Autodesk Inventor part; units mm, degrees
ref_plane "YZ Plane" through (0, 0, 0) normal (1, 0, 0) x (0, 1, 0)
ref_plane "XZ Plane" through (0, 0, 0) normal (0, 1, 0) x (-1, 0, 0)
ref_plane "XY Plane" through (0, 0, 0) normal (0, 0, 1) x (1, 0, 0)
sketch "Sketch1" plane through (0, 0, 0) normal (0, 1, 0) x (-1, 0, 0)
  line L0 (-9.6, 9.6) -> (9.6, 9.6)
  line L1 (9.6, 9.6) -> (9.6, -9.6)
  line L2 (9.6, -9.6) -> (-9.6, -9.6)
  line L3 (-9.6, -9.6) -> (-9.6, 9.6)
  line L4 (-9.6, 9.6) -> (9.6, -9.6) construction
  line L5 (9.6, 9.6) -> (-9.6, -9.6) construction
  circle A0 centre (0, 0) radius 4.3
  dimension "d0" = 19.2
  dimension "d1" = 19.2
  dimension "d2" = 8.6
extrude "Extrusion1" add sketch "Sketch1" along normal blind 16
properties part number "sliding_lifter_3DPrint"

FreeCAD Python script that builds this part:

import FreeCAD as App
import Part
import Sketcher
Q = App.Units.Quantity

doc = App.newDocument("Part")
body = doc.addObject("PartDesign::Body", "Body")

# Sketch on XZ plane
sketch1 = body.newObject("Sketcher::SketchObject", "Sketch")
sketch1.AttachmentSupport = (doc.getObject("XZ_Plane"), [""])
sketch1.MapMode = "FlatFace"
sketch1.addGeometry(Part.LineSegment(App.Vector(-9.6, 9.6, 0), App.Vector(9.6, 9.6, 0)), False)
sketch1.addGeometry(Part.LineSegment(App.Vector(9.6, 9.6, 0), App.Vector(9.6, -9.6, 0)), False)
sketch1.addGeometry(Part.LineSegment(App.Vector(9.6, -9.6, 0), App.Vector(-9.6, -9.6, 0)), False)
sketch1.addGeometry(Part.LineSegment(App.Vector(-9.6, -9.6, 0), App.Vector(-9.6, 9.6, 0)), False)
sketch1.addGeometry(Part.Circle(App.Vector(0, 0, 0), App.Vector(0, 0, 1), 4.3), False)
sketch1.addConstraint(Sketcher.Constraint("Coincident", 0, 2, 1, 1))
sketch1.addConstraint(Sketcher.Constraint("Coincident", 1, 2, 2, 1))
sketch1.addConstraint(Sketcher.Constraint("Coincident", 2, 2, 3, 1))
sketch1.addConstraint(Sketcher.Constraint("Coincident", 3, 2, 0, 1))
sketch1.addConstraint(Sketcher.Constraint("Horizontal", 0))
sketch1.addConstraint(Sketcher.Constraint("Vertical", 1))
sketch1.addConstraint(Sketcher.Constraint("Horizontal", 2))
sketch1.addConstraint(Sketcher.Constraint("Vertical", 3))
sketch1.addConstraint(Sketcher.Constraint("Coincident", 4, 3, -1, 1))
sketch1.addConstraint(Sketcher.Constraint("Symmetric", 0, 2, 2, 2, -1, 1))
sketch1.addConstraint(Sketcher.Constraint("Equal", 2, 1))
sketch1.addConstraint(Sketcher.Constraint("Diameter", 4, Q("8.6 mm")))
sketch1.addConstraint(Sketcher.Constraint("DistanceX", 0, 1, 0, 2, Q("19.2 mm")))
pad1 = body.newObject("PartDesign::Pad", "Pad")
pad1.Profile = sketch1
pad1.Length = 16
pad1.Reversed = True

doc.recompute()
